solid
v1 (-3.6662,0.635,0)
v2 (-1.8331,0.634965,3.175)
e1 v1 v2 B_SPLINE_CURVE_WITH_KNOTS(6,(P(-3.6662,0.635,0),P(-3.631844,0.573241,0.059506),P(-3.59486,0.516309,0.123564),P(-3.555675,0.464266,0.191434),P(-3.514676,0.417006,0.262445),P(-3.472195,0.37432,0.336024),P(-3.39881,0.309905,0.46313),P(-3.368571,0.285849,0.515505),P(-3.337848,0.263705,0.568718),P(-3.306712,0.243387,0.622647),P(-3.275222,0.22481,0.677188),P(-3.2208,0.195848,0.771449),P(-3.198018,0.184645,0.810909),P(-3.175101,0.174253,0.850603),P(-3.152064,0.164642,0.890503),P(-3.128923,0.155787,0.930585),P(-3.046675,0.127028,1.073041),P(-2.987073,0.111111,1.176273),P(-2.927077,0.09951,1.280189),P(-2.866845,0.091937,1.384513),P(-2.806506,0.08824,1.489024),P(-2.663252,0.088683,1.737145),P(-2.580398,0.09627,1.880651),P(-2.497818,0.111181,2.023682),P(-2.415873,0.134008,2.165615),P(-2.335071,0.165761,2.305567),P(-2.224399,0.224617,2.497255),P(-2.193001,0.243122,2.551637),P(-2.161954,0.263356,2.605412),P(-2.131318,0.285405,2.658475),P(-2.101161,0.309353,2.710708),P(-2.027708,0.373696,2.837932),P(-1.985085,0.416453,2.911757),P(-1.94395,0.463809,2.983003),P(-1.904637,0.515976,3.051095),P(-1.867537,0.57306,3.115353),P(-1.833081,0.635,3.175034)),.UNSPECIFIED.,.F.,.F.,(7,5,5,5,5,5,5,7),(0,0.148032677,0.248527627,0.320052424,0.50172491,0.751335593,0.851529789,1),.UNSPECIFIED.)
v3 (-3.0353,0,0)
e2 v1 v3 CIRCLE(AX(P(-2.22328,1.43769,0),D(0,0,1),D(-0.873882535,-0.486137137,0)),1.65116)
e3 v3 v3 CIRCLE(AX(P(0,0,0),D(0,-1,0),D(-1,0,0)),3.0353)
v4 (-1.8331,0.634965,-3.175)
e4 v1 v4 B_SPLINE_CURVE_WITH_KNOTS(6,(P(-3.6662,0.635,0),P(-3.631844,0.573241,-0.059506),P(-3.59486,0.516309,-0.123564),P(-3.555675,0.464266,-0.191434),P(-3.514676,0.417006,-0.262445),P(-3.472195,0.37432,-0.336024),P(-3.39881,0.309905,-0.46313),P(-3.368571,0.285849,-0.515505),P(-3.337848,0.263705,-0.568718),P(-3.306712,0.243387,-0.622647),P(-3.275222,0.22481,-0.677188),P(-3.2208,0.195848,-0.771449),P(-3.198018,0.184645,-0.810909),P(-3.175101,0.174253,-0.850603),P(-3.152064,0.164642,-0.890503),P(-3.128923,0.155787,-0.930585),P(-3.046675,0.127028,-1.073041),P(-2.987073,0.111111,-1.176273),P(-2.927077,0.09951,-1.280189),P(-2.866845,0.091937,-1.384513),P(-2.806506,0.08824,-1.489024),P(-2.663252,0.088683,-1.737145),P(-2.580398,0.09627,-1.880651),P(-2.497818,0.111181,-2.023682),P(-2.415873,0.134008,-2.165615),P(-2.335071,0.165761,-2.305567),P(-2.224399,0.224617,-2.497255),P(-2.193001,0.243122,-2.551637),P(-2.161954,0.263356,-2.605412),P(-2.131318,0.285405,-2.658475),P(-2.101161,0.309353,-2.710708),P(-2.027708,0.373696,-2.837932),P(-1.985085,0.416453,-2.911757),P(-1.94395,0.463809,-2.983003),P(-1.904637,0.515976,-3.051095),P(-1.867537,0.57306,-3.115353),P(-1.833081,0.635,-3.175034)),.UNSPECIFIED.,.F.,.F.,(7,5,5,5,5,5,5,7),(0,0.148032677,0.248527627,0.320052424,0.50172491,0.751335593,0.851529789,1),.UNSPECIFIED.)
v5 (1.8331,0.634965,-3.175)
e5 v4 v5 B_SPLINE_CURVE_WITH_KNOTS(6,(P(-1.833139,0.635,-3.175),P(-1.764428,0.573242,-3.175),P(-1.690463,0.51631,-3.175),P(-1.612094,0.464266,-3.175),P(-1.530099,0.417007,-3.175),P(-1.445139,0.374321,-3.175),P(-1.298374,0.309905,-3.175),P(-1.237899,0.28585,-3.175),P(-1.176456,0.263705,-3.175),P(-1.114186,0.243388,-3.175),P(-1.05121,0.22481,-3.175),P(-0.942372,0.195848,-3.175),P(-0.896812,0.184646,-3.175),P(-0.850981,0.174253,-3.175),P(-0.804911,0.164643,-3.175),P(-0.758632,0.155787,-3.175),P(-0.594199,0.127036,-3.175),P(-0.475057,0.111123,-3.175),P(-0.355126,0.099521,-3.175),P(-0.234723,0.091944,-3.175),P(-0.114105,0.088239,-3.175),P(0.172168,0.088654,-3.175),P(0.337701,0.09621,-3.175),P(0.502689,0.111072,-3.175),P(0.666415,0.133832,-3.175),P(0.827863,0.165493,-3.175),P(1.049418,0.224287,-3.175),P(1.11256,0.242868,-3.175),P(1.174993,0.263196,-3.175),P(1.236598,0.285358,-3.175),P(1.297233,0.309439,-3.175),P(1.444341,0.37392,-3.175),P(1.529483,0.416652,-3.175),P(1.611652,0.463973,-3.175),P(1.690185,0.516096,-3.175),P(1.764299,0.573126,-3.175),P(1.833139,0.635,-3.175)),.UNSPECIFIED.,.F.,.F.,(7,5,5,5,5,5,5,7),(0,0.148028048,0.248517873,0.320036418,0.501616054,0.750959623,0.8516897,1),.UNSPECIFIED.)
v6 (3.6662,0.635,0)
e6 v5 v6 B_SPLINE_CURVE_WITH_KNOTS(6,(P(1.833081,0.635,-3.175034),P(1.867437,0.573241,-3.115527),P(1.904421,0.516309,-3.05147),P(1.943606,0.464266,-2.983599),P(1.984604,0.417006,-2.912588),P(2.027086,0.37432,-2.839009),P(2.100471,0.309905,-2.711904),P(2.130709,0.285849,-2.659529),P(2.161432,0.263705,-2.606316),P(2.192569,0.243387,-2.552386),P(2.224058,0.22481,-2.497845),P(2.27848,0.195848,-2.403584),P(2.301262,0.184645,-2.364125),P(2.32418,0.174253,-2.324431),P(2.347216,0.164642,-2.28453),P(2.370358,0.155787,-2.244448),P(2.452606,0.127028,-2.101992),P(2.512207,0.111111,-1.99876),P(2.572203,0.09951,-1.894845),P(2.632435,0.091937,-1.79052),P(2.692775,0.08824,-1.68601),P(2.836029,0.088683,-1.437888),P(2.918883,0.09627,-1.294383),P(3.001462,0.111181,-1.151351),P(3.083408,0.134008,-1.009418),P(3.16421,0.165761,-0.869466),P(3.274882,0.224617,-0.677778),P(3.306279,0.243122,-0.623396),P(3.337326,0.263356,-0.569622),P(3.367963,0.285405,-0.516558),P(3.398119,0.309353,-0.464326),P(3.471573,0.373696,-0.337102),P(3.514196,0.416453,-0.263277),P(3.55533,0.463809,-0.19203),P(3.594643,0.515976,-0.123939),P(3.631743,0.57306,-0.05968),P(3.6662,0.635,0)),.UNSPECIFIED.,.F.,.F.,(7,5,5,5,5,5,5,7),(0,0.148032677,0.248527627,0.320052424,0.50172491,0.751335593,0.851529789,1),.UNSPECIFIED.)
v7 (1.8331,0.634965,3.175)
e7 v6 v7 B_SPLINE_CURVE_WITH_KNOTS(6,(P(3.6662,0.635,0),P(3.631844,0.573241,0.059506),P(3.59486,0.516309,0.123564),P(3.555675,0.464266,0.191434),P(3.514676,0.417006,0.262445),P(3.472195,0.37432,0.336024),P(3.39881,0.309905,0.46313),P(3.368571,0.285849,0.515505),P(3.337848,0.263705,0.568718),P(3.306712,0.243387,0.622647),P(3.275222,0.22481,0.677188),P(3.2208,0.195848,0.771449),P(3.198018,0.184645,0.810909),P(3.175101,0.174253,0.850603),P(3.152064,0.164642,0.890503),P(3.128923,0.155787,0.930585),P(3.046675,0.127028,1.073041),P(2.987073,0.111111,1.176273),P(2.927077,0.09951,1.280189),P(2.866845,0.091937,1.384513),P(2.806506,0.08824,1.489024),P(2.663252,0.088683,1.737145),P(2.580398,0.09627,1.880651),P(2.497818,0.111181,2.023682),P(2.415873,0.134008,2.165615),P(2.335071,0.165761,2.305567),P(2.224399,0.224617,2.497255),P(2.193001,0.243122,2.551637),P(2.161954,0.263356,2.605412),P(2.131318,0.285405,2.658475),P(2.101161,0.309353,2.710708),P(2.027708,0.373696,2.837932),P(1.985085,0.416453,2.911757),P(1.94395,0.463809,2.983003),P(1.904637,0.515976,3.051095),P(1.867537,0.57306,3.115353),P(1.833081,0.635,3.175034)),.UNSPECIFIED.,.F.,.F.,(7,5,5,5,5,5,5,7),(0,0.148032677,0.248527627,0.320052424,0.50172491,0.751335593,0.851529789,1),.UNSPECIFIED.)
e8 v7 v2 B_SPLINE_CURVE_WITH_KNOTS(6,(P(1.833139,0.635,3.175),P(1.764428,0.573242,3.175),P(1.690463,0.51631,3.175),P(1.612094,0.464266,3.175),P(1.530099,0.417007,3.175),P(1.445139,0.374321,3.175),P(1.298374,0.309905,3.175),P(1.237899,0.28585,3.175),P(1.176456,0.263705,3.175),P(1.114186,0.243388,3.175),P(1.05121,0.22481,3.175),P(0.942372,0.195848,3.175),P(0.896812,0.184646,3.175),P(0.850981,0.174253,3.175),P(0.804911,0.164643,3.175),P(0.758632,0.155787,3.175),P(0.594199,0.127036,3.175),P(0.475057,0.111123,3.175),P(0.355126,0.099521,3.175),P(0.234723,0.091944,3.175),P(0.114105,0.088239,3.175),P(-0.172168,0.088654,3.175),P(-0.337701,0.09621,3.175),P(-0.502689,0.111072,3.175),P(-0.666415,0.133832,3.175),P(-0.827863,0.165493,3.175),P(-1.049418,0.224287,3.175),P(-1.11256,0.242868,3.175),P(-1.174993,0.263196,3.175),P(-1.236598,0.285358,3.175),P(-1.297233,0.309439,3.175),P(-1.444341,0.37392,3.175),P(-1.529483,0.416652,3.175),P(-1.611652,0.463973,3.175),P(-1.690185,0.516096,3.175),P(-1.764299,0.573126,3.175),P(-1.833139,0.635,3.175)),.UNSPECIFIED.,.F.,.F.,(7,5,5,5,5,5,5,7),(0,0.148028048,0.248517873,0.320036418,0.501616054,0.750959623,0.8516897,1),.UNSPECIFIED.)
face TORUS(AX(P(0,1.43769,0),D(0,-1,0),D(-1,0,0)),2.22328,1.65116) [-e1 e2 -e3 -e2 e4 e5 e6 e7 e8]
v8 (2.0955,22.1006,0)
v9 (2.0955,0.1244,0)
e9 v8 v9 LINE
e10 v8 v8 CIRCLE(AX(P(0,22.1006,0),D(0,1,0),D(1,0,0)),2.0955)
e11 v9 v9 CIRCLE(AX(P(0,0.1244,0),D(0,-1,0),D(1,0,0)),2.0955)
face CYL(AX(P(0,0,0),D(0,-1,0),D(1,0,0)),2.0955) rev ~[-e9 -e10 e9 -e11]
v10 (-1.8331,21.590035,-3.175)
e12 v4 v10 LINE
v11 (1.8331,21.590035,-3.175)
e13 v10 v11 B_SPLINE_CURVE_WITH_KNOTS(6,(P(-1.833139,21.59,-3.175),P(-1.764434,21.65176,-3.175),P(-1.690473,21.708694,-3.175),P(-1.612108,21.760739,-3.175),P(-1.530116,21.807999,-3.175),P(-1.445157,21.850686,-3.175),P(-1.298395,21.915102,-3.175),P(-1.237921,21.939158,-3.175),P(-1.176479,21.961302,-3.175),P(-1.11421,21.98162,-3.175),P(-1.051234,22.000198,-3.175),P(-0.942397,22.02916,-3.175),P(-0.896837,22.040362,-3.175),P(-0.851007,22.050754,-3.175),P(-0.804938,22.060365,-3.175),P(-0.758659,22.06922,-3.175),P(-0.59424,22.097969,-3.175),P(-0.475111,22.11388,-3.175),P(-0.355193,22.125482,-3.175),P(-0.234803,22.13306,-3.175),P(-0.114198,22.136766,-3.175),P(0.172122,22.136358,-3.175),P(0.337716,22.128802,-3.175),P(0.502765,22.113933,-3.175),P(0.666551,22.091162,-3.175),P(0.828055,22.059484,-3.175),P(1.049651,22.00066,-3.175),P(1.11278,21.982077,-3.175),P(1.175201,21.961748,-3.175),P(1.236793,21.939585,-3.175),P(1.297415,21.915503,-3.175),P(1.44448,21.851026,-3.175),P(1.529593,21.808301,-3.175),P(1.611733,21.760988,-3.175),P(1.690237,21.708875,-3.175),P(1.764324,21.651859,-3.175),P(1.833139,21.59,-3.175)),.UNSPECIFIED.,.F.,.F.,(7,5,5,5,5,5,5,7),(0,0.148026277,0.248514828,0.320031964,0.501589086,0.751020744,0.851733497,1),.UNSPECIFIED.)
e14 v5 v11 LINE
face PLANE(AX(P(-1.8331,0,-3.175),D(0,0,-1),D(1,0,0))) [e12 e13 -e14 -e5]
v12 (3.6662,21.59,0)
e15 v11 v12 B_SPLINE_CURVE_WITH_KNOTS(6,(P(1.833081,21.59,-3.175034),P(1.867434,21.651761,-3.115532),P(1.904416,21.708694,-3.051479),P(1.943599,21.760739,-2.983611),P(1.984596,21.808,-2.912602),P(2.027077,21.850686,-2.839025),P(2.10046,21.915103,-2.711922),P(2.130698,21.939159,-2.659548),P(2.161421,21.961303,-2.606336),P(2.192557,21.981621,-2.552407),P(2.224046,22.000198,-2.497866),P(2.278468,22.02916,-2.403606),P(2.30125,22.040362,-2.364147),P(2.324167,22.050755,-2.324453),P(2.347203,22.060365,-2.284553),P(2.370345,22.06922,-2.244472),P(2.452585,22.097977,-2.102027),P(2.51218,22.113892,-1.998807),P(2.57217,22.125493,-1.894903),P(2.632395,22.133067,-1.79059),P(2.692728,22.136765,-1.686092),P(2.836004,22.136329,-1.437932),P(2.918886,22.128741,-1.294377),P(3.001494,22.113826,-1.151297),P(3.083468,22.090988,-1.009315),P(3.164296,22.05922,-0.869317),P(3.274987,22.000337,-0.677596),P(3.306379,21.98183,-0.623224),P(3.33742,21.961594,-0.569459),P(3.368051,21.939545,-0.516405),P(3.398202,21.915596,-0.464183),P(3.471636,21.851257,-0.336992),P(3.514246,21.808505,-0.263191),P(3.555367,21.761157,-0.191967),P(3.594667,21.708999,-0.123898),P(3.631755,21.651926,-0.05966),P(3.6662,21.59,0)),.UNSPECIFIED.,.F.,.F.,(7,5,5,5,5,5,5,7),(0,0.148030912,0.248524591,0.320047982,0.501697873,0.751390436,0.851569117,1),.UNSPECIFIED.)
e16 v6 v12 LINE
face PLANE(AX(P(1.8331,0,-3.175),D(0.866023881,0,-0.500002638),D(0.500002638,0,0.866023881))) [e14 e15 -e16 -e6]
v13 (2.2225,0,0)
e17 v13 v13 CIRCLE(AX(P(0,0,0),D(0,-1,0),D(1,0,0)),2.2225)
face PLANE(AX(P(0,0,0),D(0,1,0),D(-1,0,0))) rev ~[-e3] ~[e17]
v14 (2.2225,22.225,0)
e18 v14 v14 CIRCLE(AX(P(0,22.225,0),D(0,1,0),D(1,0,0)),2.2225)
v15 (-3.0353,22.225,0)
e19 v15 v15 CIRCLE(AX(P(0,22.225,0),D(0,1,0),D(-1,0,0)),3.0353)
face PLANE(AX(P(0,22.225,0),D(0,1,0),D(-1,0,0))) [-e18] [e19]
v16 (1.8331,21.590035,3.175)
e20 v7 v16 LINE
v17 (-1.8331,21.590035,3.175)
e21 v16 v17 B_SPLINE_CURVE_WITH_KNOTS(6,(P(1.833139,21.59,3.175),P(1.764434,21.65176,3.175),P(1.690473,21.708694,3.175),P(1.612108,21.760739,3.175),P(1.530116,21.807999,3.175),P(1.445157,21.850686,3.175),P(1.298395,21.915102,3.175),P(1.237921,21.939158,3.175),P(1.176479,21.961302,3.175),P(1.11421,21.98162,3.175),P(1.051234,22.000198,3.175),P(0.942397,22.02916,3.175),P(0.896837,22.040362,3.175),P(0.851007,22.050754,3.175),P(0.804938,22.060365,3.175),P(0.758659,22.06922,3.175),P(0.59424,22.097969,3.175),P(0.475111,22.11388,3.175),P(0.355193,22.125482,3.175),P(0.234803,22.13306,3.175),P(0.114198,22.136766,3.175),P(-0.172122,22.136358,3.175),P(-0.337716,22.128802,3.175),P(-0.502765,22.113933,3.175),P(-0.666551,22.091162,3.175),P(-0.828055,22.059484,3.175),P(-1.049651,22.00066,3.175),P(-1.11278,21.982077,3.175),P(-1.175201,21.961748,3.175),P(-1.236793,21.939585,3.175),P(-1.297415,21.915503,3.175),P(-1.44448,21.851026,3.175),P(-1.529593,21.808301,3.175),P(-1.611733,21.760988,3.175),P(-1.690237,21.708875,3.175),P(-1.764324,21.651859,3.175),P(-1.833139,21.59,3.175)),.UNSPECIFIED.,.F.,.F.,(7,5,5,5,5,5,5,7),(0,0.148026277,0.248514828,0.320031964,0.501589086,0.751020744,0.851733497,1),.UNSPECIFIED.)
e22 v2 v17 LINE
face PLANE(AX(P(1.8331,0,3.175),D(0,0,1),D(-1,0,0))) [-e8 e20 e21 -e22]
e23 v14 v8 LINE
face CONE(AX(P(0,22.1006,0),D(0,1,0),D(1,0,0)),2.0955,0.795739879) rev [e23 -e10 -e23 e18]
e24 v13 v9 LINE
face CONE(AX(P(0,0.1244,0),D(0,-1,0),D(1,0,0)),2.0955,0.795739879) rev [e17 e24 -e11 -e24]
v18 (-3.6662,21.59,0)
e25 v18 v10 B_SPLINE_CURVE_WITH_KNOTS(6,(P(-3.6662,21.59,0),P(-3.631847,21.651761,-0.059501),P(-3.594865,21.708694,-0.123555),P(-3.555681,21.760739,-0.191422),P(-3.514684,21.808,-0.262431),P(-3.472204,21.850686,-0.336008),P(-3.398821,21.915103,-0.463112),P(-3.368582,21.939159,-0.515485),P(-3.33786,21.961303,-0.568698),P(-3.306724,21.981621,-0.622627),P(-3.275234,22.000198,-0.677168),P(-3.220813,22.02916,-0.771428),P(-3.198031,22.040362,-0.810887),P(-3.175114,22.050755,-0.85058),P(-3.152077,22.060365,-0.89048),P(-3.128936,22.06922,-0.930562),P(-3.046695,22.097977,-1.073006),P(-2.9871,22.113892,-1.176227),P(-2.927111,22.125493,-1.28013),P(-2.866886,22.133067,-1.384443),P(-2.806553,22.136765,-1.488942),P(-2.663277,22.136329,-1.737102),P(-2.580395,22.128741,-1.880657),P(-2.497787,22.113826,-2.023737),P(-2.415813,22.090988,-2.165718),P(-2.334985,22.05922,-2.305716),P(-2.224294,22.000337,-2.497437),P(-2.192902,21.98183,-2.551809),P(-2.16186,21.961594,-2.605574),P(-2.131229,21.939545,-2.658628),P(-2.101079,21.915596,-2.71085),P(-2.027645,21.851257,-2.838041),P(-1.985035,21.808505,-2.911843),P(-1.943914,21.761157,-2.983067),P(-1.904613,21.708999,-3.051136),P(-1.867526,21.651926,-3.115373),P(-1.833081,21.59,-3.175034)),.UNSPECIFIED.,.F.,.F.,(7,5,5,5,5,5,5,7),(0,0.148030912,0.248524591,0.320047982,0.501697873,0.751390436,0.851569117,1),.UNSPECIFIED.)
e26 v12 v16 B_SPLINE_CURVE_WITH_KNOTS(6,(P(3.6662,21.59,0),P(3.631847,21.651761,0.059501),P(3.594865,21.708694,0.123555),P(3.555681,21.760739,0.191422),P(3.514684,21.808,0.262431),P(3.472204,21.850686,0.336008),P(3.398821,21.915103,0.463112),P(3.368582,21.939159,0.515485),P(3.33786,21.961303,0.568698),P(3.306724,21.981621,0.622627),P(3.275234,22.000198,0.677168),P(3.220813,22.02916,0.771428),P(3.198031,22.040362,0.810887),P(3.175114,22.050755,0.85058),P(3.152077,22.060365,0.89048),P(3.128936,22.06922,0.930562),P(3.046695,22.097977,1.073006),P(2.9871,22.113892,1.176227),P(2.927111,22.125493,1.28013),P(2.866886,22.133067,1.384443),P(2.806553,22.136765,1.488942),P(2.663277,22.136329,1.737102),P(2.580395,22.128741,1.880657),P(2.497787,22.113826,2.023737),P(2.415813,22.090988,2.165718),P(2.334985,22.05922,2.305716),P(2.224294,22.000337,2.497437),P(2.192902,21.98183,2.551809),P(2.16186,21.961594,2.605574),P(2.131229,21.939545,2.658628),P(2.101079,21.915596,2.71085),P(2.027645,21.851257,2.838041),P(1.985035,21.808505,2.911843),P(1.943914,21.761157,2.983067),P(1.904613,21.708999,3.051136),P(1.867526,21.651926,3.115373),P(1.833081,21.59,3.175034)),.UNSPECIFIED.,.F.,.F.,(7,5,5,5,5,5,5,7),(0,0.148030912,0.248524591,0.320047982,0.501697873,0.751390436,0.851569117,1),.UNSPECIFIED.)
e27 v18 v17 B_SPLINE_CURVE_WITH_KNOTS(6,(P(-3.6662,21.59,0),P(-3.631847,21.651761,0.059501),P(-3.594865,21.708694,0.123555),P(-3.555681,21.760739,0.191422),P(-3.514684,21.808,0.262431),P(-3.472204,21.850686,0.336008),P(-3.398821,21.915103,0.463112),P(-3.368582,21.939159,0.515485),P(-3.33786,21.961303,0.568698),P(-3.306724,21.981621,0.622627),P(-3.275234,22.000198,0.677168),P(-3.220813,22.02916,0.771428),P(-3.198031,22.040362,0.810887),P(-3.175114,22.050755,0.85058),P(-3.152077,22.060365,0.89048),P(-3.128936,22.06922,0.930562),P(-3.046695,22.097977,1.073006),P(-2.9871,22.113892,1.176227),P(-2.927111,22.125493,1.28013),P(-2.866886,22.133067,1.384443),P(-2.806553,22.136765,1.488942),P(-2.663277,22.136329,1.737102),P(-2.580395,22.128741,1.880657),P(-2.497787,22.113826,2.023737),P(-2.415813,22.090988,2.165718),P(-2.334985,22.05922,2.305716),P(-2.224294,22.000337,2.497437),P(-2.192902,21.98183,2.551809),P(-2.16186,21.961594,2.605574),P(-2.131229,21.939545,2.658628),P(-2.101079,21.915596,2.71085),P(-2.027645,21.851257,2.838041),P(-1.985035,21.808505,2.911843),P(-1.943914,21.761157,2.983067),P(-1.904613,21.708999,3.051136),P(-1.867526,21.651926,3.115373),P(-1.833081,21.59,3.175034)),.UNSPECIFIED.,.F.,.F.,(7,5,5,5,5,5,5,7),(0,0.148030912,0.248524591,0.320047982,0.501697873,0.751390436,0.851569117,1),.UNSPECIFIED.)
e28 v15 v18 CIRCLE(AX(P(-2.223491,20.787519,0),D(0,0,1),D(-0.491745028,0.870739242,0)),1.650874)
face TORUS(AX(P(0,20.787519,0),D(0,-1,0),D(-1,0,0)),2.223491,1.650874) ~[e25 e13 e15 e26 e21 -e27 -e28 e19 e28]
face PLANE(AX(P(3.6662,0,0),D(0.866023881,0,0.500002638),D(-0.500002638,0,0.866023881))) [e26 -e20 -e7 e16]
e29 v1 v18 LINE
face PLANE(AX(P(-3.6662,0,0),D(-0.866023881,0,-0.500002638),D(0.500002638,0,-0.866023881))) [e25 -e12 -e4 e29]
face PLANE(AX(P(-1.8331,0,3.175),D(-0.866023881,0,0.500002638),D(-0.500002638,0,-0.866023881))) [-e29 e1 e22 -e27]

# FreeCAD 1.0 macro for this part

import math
import FreeCAD as App
import Part
import Sketcher

V = App.Vector
Q = App.Units.Quantity


def edges_at(feature, points):
    """Names of the edges that pass closest to the given points."""
    edges = feature.Shape.Edges
    near = lambda p: min(range(len(edges)), key=lambda i: edges[i].distToShape(Part.Vertex(*p))[0])
    return sorted({f"Edge{near(p) + 1}" for p in points})


def add_polygon(sketch, points):
    """Adds a closed chain of lines whose ends are joined by coincident constraints."""
    first, n = sketch.GeometryCount, len(points)
    for a, b in zip(points, points[1:] + points[:1]):
        sketch.addGeometry(Part.LineSegment(App.Vector(*a, 0), App.Vector(*b, 0)), False)
    for i in range(n):
        sketch.addConstraint(Sketcher.Constraint("Coincident", first + i, 2, first + (i + 1) % n, 1))

doc = App.newDocument("Part")
body = doc.addObject("PartDesign::Body", "Body")

# Sketch on XZ plane
sketch1 = doc.addObject("Sketcher::SketchObject", "Sketch")
body.addObject(sketch1)
sketch1.AttachmentSupport = (doc.XZ_Plane, [""])
sketch1.MapMode = "FlatFace"
add_polygon(sketch1, [(3.7, 0), (1.8, -3.2), (-1.8, -3.2), (-3.7, 0), (-1.8, 3.2), (1.8, 3.2)])  # lines 0-5
sketch1.addConstraint(Sketcher.Constraint("Horizontal", 1))
sketch1.addConstraint(Sketcher.Constraint("Horizontal", 4))
sketch1.addConstraint(Sketcher.Constraint("Symmetric", 0, 2, 3, 2, -1, 1))
sketch1.addConstraint(Sketcher.Constraint("Symmetric", 2, 2, 5, 2, -1, 1))
sketch1.addConstraint(Sketcher.Constraint("PointOnObject", 2, 2, -1))
sketch1.addConstraint(Sketcher.Constraint("Parallel", 2, 5))
sketch1.addConstraint(Sketcher.Constraint("Vertical", 1, 2, 3, 2))
sketch1.addConstraint(Sketcher.Constraint("DistanceY", 1, 2, 3, 2, Q("0.25 in")))
sketch1.addConstraint(Sketcher.Constraint("Angle", 0, Q("-120.0002 deg")))
sketch1.addConstraint(Sketcher.Constraint("DistanceX", 1, 2, 1, 1, 3.6662))
pad1 = doc.addObject("PartDesign::Pad", "Pad")
body.addObject(pad1)
pad1.Profile = sketch1
pad1.Length = Q("0.875 in")
pad1.Reversed = True

# Sketch on XZ plane
sketch2 = doc.addObject("Sketcher::SketchObject", "Sketch001")
body.addObject(sketch2)
sketch2.AttachmentSupport = (doc.XZ_Plane, [""])
sketch2.MapMode = "FlatFace"
sketch2.AttachmentOffset = App.Placement(V(0, 0, -0.875 * 25.4), App.Rotation())
sketch2.addGeometry(Part.Circle(V(0, 0, 0), V(0, 0, 1), 2.1), False)
sketch2.addConstraint(Sketcher.Constraint("Coincident", 0, 3, -1, 1))
sketch2.addConstraint(Sketcher.Constraint("Diameter", 0, Q("0.165 in")))
pocket1 = doc.addObject("PartDesign::Pocket", "Pocket")
body.addObject(pocket1)
pocket1.Profile = sketch2
pocket1.Length = Q("0.5 in")
pocket1.Reversed = True

# Sketch on XZ plane
sketch3 = doc.addObject("Sketcher::SketchObject", "Sketch002")
body.addObject(sketch3)
sketch3.AttachmentSupport = (doc.XZ_Plane, [""])
sketch3.MapMode = "FlatFace"
sketch3.addGeometry(Part.Circle(V(0, 0, 0), V(0, 0, 1), 2.1), False)
sketch3.addConstraint(Sketcher.Constraint("Coincident", 0, 3, -1, 1))
sketch3.addConstraint(Sketcher.Constraint("Diameter", 0, Q("0.165 in")))
pocket2 = doc.addObject("PartDesign::Pocket", "Pocket001")
body.addObject(pocket2)
pocket2.Profile = sketch3
pocket2.Length = Q("0.5 in")
doc.recompute()

chamfer = doc.addObject("PartDesign::Chamfer", "Chamfer")
body.addObject(chamfer)
chamfer.Base = (pocket2, edges_at(pocket2, [(-2.095, 22.225, 0)]))
chamfer.ChamferType = "Two distances"
chamfer.Size = Q("0.005 in")
chamfer.Size2 = Q("0.0048976 in")
doc.recompute()

chamfer2 = doc.addObject("PartDesign::Chamfer", "Chamfer001")
body.addObject(chamfer2)
chamfer2.Base = (chamfer, edges_at(chamfer, [(-2.095, 0, 0)]))
chamfer2.ChamferType = "Two distances"
chamfer2.Size = Q("0.005 in")
chamfer2.Size2 = Q("0.0048976 in")

# Sketch on XY plane
sketch4 = doc.addObject("Sketcher::SketchObject", "Sketch003")
body.addObject(sketch4)
sketch4.AttachmentSupport = (doc.XY_Plane, [""])
sketch4.MapMode = "FlatFace"
sketch4.addGeometry(Part.LineSegment(V(0, 22.2, 0), V(-6.4, 24.2, 0)), False)
sketch4.addGeometry(Part.LineSegment(V(-6.4, 24.2, 0), V(-3.7, 21.6, 0)), False)
sketch4.addGeometry(Part.ArcOfCircle(Part.Circle(V(-2.2, 20.8, 0), V(0, 0, 1), 1.7), math.radians(119), math.radians(151)), False)
sketch4.addGeometry(Part.LineSegment(V(-3, 22.2, 0), V(0, 22.2, 0)), False)
sketch4.addConstraint(Sketcher.Constraint("Coincident", 0, 2, 1, 1))
sketch4.addConstraint(Sketcher.Constraint("Coincident", 1, 2, 2, 2))
sketch4.addConstraint(Sketcher.Constraint("Coincident", 2, 1, 3, 1))
sketch4.addConstraint(Sketcher.Constraint("Coincident", 3, 2, 0, 1))
sketch4.addConstraint(Sketcher.Constraint("Horizontal", 3))
sketch4.addConstraint(Sketcher.Constraint("PointOnObject", 3, 2, -2))
sketch4.addConstraint(Sketcher.Constraint("Radius", 2, Q("0.065 in")))
sketch4.addConstraint(Sketcher.Constraint("DistanceX", 3, 1, 3, 2, Q("0.1195 in")))
sketch4.addConstraint(Sketcher.Constraint("DistanceY", 1, 2, 2, 1, Q("0.025 in")))
sketch4.addConstraint(Sketcher.Constraint("DistanceY", -1, 1, 1, 2, Q("0.85 in")))
sketch4.addConstraint(Sketcher.Constraint("Angle", 0, Q("162.8302 deg")))
sketch4.addConstraint(Sketcher.Constraint("DistanceX", 0, 2, 1, 2, Q("0.106 in")))
sketch4.addConstraint(Sketcher.Constraint("DistanceY", -1, 1, 2, 3, Q("0.8184 in")))
groove = doc.addObject("PartDesign::Groove", "Groove")
body.addObject(groove)
groove.Profile = sketch4
groove.ReferenceAxis = (sketch4, ["V_Axis"])
groove.Angle = 360

# Sketch on XY plane
sketch5 = doc.addObject("Sketcher::SketchObject", "Sketch004")
body.addObject(sketch5)
sketch5.AttachmentSupport = (doc.XY_Plane, [""])
sketch5.MapMode = "FlatFace"
sketch5.addGeometry(Part.LineSegment(V(-4.1, -0.9, 0), V(0, 0, 0)), False)
sketch5.addGeometry(Part.LineSegment(V(0, 0, 0), V(-3, 0, 0)), False)
sketch5.addGeometry(Part.ArcOfCircle(Part.Circle(V(-2.2, 1.4, 0), V(0, 0, 1), 1.7), math.radians(-151), math.radians(-119)), False)
sketch5.addGeometry(Part.LineSegment(V(-3.7, 0.6, 0), V(-4.1, -0.9, 0)), False)
sketch5.addConstraint(Sketcher.Constraint("Coincident", 0, 2, 1, 1))
sketch5.addConstraint(Sketcher.Constraint("Coincident", 1, 2, 2, 2))
sketch5.addConstraint(Sketcher.Constraint("Coincident", 2, 1, 3, 1))
sketch5.addConstraint(Sketcher.Constraint("Coincident", 3, 2, 0, 1))
sketch5.addConstraint(Sketcher.Constraint("Horizontal", 1))
sketch5.addConstraint(Sketcher.Constraint("Coincident", 0, 2, -1, 1))
sketch5.addConstraint(Sketcher.Constraint("Radius", 2, Q("0.065 in")))
sketch5.addConstraint(Sketcher.Constraint("DistanceX", 1, 2, 1, 1, Q("0.1195 in")))
sketch5.addConstraint(Sketcher.Constraint("DistanceY", -1, 1, 2, 1, Q("0.025 in")))
sketch5.addConstraint(Sketcher.Constraint("Distance", 3, Q("0.0619 in")))
sketch5.addConstraint(Sketcher.Constraint("DistanceY", -1, 1, 2, 3, Q("0.0566 in")))
sketch5.addConstraint(Sketcher.Constraint("DistanceY", 3, 2, -1, 1, Q("0.0343 in")))
groove2 = doc.addObject("PartDesign::Groove", "Groove001")
body.addObject(groove2)
groove2.Profile = sketch5
groove2.ReferenceAxis = (sketch5, ["V_Axis"])
groove2.Angle = 360

doc.recompute()
